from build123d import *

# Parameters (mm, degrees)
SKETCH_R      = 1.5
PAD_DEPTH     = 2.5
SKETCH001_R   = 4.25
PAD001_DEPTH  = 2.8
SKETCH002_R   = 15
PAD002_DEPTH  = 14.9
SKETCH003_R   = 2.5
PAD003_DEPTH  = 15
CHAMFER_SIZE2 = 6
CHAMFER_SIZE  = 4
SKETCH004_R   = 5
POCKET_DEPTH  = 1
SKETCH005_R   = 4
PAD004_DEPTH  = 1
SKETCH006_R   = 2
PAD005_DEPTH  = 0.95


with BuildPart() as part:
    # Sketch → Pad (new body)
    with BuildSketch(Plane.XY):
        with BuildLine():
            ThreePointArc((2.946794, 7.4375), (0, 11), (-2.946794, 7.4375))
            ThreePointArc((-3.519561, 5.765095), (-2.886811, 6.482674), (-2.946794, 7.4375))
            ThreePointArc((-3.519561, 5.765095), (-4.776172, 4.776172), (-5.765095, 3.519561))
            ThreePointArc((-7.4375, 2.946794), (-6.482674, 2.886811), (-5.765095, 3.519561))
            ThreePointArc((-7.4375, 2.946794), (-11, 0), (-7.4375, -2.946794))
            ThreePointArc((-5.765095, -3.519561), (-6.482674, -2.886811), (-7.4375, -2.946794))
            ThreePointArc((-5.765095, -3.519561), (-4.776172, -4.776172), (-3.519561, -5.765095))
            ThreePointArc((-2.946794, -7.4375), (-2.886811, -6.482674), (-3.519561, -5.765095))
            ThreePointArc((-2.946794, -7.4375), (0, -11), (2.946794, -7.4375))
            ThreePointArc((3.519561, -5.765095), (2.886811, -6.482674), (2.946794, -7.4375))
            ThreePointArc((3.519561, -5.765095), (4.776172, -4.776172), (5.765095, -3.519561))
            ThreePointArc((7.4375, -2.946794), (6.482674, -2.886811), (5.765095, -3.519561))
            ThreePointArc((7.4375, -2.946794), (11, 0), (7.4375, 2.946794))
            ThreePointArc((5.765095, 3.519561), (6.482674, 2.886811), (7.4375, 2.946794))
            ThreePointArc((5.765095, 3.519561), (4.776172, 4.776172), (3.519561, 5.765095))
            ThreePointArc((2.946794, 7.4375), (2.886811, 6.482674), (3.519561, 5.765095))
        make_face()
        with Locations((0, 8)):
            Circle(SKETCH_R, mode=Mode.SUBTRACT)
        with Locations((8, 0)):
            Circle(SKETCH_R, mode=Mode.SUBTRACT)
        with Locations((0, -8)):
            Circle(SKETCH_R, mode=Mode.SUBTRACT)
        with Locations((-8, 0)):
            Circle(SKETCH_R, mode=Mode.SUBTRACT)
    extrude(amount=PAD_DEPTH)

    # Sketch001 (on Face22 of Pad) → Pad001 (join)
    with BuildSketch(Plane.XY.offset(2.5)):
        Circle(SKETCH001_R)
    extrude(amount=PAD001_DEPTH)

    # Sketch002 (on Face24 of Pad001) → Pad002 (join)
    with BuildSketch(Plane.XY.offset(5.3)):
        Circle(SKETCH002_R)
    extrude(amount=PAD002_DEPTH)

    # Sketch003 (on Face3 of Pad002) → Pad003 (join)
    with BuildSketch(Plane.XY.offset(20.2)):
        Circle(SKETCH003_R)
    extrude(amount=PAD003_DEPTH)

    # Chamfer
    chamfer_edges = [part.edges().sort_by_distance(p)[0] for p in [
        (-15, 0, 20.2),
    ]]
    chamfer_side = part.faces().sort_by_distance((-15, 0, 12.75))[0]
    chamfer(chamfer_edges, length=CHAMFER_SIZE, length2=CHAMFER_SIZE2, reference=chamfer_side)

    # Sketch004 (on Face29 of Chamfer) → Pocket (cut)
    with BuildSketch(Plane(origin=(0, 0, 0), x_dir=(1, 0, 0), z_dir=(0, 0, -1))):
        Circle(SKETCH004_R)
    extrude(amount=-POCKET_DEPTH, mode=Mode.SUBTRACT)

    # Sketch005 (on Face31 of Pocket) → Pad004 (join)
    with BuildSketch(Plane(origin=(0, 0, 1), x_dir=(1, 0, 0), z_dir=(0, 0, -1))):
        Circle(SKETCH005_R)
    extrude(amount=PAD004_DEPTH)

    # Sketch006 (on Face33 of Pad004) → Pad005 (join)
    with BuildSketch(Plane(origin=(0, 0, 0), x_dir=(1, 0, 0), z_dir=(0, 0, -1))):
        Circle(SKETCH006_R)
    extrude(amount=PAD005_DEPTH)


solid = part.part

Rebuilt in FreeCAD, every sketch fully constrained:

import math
import FreeCAD as App
import Part
import Sketcher

V = App.Vector
Q = App.Units.Quantity


def edges_at(feature, points):
    """Names of the edges that pass closest to the given points."""
    edges = feature.Shape.Edges
    near = lambda p: min(range(len(edges)), key=lambda i: edges[i].distToShape(Part.Vertex(*p))[0])
    return sorted({f"Edge{near(p) + 1}" for p in points})

doc = App.newDocument("Part")
body = doc.addObject("PartDesign::Body", "Body")

# Sketch on XY plane
sketch1 = body.newObject("Sketcher::SketchObject", "Sketch")
sketch1.AttachmentSupport = (doc.getObject("XY_Plane"), [""])
sketch1.MapMode = "FlatFace"
sketch1.addGeometry(Part.ArcOfCircle(Part.Circle(V(0, 8, 0), V(0, 0, 1), 3), math.radians(-10.806919), math.radians(190.806919)), False)
sketch1.addGeometry(Part.ArcOfCircle(Part.Circle(V(-4.06938, 6.887681, 0), V(0, 0, 1), 1.25), math.radians(-63.905353), math.radians(26.094634)), False)
sketch1.addGeometry(Part.ArcOfCircle(Part.Circle(V(-0.000015, 0.000015, 0), V(0, 0, 1), 6.754506), math.radians(121.40381), math.radians(148.59619)), False)
sketch1.addGeometry(Part.ArcOfCircle(Part.Circle(V(-6.887681, 4.06938, 0), V(0, 0, 1), 1.25), math.radians(-116.094634), math.radians(-26.094647)), False)
sketch1.addGeometry(Part.ArcOfCircle(Part.Circle(V(-8, 0, 0), V(0, 0, 1), 3), math.radians(79.193081), math.radians(280.806919)), False)
sketch1.addGeometry(Part.ArcOfCircle(Part.Circle(V(-6.887681, -4.06938, 0), V(0, 0, 1), 1.25), math.radians(26.094647), math.radians(116.094634)), False)
sketch1.addGeometry(Part.ArcOfCircle(Part.Circle(V(-0.000015, -0.000015, 0), V(0, 0, 1), 6.754506), math.radians(-148.59619), math.radians(-121.40381)), False)
sketch1.addGeometry(Part.ArcOfCircle(Part.Circle(V(-4.06938, -6.887681, 0), V(0, 0, 1), 1.25), math.radians(-26.094634), math.radians(63.905353)), False)
sketch1.addGeometry(Part.ArcOfCircle(Part.Circle(V(0, -8, 0), V(0, 0, 1), 3), math.radians(169.193081), math.radians(370.806919)), False)
sketch1.addGeometry(Part.ArcOfCircle(Part.Circle(V(4.06938, -6.887681, 0), V(0, 0, 1), 1.25), math.radians(116.094647), math.radians(206.094634)), False)
sketch1.addGeometry(Part.ArcOfCircle(Part.Circle(V(0.000015, -0.000015, 0), V(0, 0, 1), 6.754506), math.radians(-58.59619), math.radians(-31.40381)), False)
sketch1.addGeometry(Part.ArcOfCircle(Part.Circle(V(6.887681, -4.06938, 0), V(0, 0, 1), 1.25), math.radians(63.905366), math.radians(153.905353)), False)
sketch1.addGeometry(Part.ArcOfCircle(Part.Circle(V(8, 0, 0), V(0, 0, 1), 3), math.radians(-100.806919), math.radians(100.806919)), False)
sketch1.addGeometry(Part.ArcOfCircle(Part.Circle(V(6.887681, 4.06938, 0), V(0, 0, 1), 1.25), math.radians(-153.905353), math.radians(-63.905366)), False)
sketch1.addGeometry(Part.ArcOfCircle(Part.Circle(V(0.000015, 0.000015, 0), V(0, 0, 1), 6.754506), math.radians(31.40381), math.radians(58.59619)), False)
sketch1.addGeometry(Part.ArcOfCircle(Part.Circle(V(4.06938, 6.887681, 0), V(0, 0, 1), 1.25), math.radians(153.905366), math.radians(243.905353)), False)
sketch1.addGeometry(Part.Circle(V(0, -8, 0), V(0, 0, 1), 1.5), False)
sketch1.addGeometry(Part.Circle(V(-8, 0, 0), V(0, 0, 1), 1.5), False)
sketch1.addGeometry(Part.Circle(V(8, 0, 0), V(0, 0, 1), 1.5), False)
sketch1.addGeometry(Part.Circle(V(0, 8, 0), V(0, 0, 1), 1.5), False)
sketch1.addConstraint(Sketcher.Constraint("Coincident", 0, 2, 1, 2))
sketch1.addConstraint(Sketcher.Constraint("Coincident", 1, 1, 2, 1))
sketch1.addConstraint(Sketcher.Constraint("Coincident", 2, 2, 3, 2))
sketch1.addConstraint(Sketcher.Constraint("Coincident", 3, 1, 4, 1))
sketch1.addConstraint(Sketcher.Constraint("Coincident", 4, 2, 5, 2))
sketch1.addConstraint(Sketcher.Constraint("Coincident", 5, 1, 6, 1))
sketch1.addConstraint(Sketcher.Constraint("Coincident", 6, 2, 7, 2))
sketch1.addConstraint(Sketcher.Constraint("Coincident", 7, 1, 8, 1))
sketch1.addConstraint(Sketcher.Constraint("Coincident", 8, 2, 9, 2))
sketch1.addConstraint(Sketcher.Constraint("Coincident", 9, 1, 10, 1))
sketch1.addConstraint(Sketcher.Constraint("Coincident", 10, 2, 11, 2))
sketch1.addConstraint(Sketcher.Constraint("Coincident", 11, 1, 12, 1))
sketch1.addConstraint(Sketcher.Constraint("Coincident", 12, 2, 13, 2))
sketch1.addConstraint(Sketcher.Constraint("Coincident", 13, 1, 14, 1))
sketch1.addConstraint(Sketcher.Constraint("Coincident", 14, 2, 15, 2))
sketch1.addConstraint(Sketcher.Constraint("Coincident", 15, 1, 0, 1))
sketch1.addConstraint(Sketcher.Constraint("Coincident", 16, 3, 8, 3))
sketch1.addConstraint(Sketcher.Constraint("Coincident", 17, 3, 4, 3))
sketch1.addConstraint(Sketcher.Constraint("Coincident", 18, 3, 12, 3))
sketch1.addConstraint(Sketcher.Constraint("Coincident", 19, 3, 0, 3))
sketch1.addConstraint(Sketcher.Constraint("Equal", 1, 3))
sketch1.addConstraint(Sketcher.Constraint("Equal", 0, 4))
sketch1.addConstraint(Sketcher.Constraint("Equal", 3, 5))
sketch1.addConstraint(Sketcher.Constraint("Equal", 2, 6))
sketch1.addConstraint(Sketcher.Constraint("Equal", 5, 7))
sketch1.addConstraint(Sketcher.Constraint("Equal", 4, 8))
sketch1.addConstraint(Sketcher.Constraint("Equal", 7, 9))
sketch1.addConstraint(Sketcher.Constraint("Equal", 6, 10))
sketch1.addConstraint(Sketcher.Constraint("Equal", 9, 11))
sketch1.addConstraint(Sketcher.Constraint("Equal", 8, 12))
sketch1.addConstraint(Sketcher.Constraint("Equal", 11, 13))
sketch1.addConstraint(Sketcher.Constraint("Equal", 10, 14))
sketch1.addConstraint(Sketcher.Constraint("Equal", 13, 15))
sketch1.addConstraint(Sketcher.Constraint("Equal", 16, 17))
sketch1.addConstraint(Sketcher.Constraint("Equal", 17, 18))
sketch1.addConstraint(Sketcher.Constraint("Equal", 18, 19))
sketch1.addConstraint(Sketcher.Constraint("Symmetric", 0, 3, 8, 3, -1, 1))
sketch1.addConstraint(Sketcher.Constraint("Symmetric", 1, 3, 9, 3, -1, 1))
sketch1.addConstraint(Sketcher.Constraint("Symmetric", 2, 3, 10, 3, -1, 1))
sketch1.addConstraint(Sketcher.Constraint("Symmetric", 3, 3, 11, 3, -1, 1))
sketch1.addConstraint(Sketcher.Constraint("Symmetric", 4, 3, 12, 3, -1, 1))
sketch1.addConstraint(Sketcher.Constraint("Symmetric", 5, 3, 13, 3, -1, 1))
sketch1.addConstraint(Sketcher.Constraint("Symmetric", 6, 3, 14, 3, -1, 1))
sketch1.addConstraint(Sketcher.Constraint("Symmetric", 7, 3, 15, 3, -1, 1))
sketch1.addConstraint(Sketcher.Constraint("Symmetric", 7, 3, 9, 3, -2))
sketch1.addConstraint(Sketcher.Constraint("Symmetric", 6, 3, 10, 3, -2))
sketch1.addConstraint(Sketcher.Constraint("Symmetric", 5, 3, 11, 3, -2))
sketch1.addConstraint(Sketcher.Constraint("PointOnObject", 0, 3, -2))
sketch1.addConstraint(Sketcher.Constraint("PointOnObject", 4, 3, -1))
sketch1.addConstraint(Sketcher.Constraint("Diameter", 16, Q("3 mm")))
sketch1.addConstraint(Sketcher.Constraint("Radius", 0, Q("3 mm")))
sketch1.addConstraint(Sketcher.Constraint("Radius", 1, Q("1.25 mm")))
sketch1.addConstraint(Sketcher.Constraint("DistanceY", -1, 1, 0, 3, Q("8 mm")))
sketch1.addConstraint(Sketcher.Constraint("DistanceX", 4, 3, -1, 1, Q("8 mm")))
sketch1.addConstraint(Sketcher.Constraint("Radius", 2, Q("6.754506 mm")))
sketch1.addConstraint(Sketcher.Constraint("DistanceY", -1, 1, 0, 2, Q("7.4375 mm")))
sketch1.addConstraint(Sketcher.Constraint("DistanceX", 3, 1, -1, 1, Q("7.4375 mm")))
sketch1.addConstraint(Sketcher.Constraint("DistanceX", 3, 3, 1, 3, Q("2.818301 mm")))
sketch1.addConstraint(Sketcher.Constraint("DistanceY", 3, 3, 1, 3, Q("2.818301 mm")))
sketch1.addConstraint(Sketcher.Constraint("DistanceY", 3, 1, 1, 1, Q("2.818301 mm")))
sketch1.addConstraint(Sketcher.Constraint("DistanceX", 5, 1, 7, 1, Q("2.818301 mm")))
pad1 = body.newObject("PartDesign::Pad", "Pad")
pad1.Profile = sketch1
pad1.Length = 2.5

# Sketch on XY plane
sketch2 = body.newObject("Sketcher::SketchObject", "Sketch001")
sketch2.AttachmentSupport = (doc.getObject("XY_Plane"), [""])
sketch2.MapMode = "FlatFace"
sketch2.AttachmentOffset = App.Placement(V(0, 0, 2.5), App.Rotation())
sketch2.addGeometry(Part.Circle(V(0, 0, 0), V(0, 0, 1), 4.25), False)
sketch2.addConstraint(Sketcher.Constraint("Coincident", 0, 3, -1, 1))
sketch2.addConstraint(Sketcher.Constraint("Diameter", 0, Q("8.5 mm")))
pad2 = body.newObject("PartDesign::Pad", "Pad001")
pad2.Profile = sketch2
pad2.Length = 2.8

# Sketch on XY plane
sketch3 = body.newObject("Sketcher::SketchObject", "Sketch002")
sketch3.AttachmentSupport = (doc.getObject("XY_Plane"), [""])
sketch3.MapMode = "FlatFace"
sketch3.AttachmentOffset = App.Placement(V(0, 0, 5.3), App.Rotation())
sketch3.addGeometry(Part.Circle(V(0, 0, 0), V(0, 0, 1), 15), False)
sketch3.addConstraint(Sketcher.Constraint("Coincident", 0, 3, -1, 1))
sketch3.addConstraint(Sketcher.Constraint("Diameter", 0, Q("30 mm")))
pad3 = body.newObject("PartDesign::Pad", "Pad002")
pad3.Profile = sketch3
pad3.Length = 14.9

# Sketch on XY plane
sketch4 = body.newObject("Sketcher::SketchObject", "Sketch003")
sketch4.AttachmentSupport = (doc.getObject("XY_Plane"), [""])
sketch4.MapMode = "FlatFace"
sketch4.AttachmentOffset = App.Placement(V(0, 0, 20.2), App.Rotation())
sketch4.addGeometry(Part.Circle(V(0, 0, 0), V(0, 0, 1), 2.5), False)
sketch4.addConstraint(Sketcher.Constraint("Coincident", 0, 3, -1, 1))
sketch4.addConstraint(Sketcher.Constraint("Diameter", 0, Q("5 mm")))
pad4 = body.newObject("PartDesign::Pad", "Pad003")
pad4.Profile = sketch4
pad4.Length = 15
doc.recompute()

chamfer = body.newObject("PartDesign::Chamfer", "Chamfer")
chamfer.Base = (pad4, edges_at(pad4, [(-15, 0, 20.2)]))
chamfer.ChamferType = "Two distances"
chamfer.Size = 4
chamfer.Size2 = 6

# Sketch on XY plane
sketch5 = body.newObject("Sketcher::SketchObject", "Sketch004")
sketch5.AttachmentSupport = (doc.getObject("XY_Plane"), [""])
sketch5.MapMode = "FlatFace"
sketch5.addGeometry(Part.Circle(V(0, 0, 0), V(0, 0, 1), 5), False)
sketch5.addConstraint(Sketcher.Constraint("Coincident", 0, 3, -1, 1))
sketch5.addConstraint(Sketcher.Constraint("Diameter", 0, Q("10 mm")))
pocket1 = body.newObject("PartDesign::Pocket", "Pocket")
pocket1.Profile = sketch5
pocket1.Length = 1
pocket1.Reversed = True

# Sketch on XY plane
sketch6 = body.newObject("Sketcher::SketchObject", "Sketch005")
sketch6.AttachmentSupport = (doc.getObject("XY_Plane"), [""])
sketch6.MapMode = "FlatFace"
sketch6.AttachmentOffset = App.Placement(V(0, 0, 1), App.Rotation())
sketch6.addGeometry(Part.Circle(V(0, 0, 0), V(0, 0, 1), 4), False)
sketch6.addConstraint(Sketcher.Constraint("Coincident", 0, 3, -1, 1))
sketch6.addConstraint(Sketcher.Constraint("Diameter", 0, Q("8 mm")))
pad5 = body.newObject("PartDesign::Pad", "Pad004")
pad5.Profile = sketch6
pad5.Length = 1
pad5.Reversed = True

# Sketch on XY plane
sketch7 = body.newObject("Sketcher::SketchObject", "Sketch006")
sketch7.AttachmentSupport = (doc.getObject("XY_Plane"), [""])
sketch7.MapMode = "FlatFace"
sketch7.addGeometry(Part.Circle(V(0, 0, 0), V(0, 0, 1), 2), False)
sketch7.addConstraint(Sketcher.Constraint("Coincident", 0, 3, -1, 1))
sketch7.addConstraint(Sketcher.Constraint("Diameter", 0, Q("4 mm")))
pad6 = body.newObject("PartDesign::Pad", "Pad005")
pad6.Profile = sketch7
pad6.Length = 0.95
pad6.Reversed = True

doc.recompute()
